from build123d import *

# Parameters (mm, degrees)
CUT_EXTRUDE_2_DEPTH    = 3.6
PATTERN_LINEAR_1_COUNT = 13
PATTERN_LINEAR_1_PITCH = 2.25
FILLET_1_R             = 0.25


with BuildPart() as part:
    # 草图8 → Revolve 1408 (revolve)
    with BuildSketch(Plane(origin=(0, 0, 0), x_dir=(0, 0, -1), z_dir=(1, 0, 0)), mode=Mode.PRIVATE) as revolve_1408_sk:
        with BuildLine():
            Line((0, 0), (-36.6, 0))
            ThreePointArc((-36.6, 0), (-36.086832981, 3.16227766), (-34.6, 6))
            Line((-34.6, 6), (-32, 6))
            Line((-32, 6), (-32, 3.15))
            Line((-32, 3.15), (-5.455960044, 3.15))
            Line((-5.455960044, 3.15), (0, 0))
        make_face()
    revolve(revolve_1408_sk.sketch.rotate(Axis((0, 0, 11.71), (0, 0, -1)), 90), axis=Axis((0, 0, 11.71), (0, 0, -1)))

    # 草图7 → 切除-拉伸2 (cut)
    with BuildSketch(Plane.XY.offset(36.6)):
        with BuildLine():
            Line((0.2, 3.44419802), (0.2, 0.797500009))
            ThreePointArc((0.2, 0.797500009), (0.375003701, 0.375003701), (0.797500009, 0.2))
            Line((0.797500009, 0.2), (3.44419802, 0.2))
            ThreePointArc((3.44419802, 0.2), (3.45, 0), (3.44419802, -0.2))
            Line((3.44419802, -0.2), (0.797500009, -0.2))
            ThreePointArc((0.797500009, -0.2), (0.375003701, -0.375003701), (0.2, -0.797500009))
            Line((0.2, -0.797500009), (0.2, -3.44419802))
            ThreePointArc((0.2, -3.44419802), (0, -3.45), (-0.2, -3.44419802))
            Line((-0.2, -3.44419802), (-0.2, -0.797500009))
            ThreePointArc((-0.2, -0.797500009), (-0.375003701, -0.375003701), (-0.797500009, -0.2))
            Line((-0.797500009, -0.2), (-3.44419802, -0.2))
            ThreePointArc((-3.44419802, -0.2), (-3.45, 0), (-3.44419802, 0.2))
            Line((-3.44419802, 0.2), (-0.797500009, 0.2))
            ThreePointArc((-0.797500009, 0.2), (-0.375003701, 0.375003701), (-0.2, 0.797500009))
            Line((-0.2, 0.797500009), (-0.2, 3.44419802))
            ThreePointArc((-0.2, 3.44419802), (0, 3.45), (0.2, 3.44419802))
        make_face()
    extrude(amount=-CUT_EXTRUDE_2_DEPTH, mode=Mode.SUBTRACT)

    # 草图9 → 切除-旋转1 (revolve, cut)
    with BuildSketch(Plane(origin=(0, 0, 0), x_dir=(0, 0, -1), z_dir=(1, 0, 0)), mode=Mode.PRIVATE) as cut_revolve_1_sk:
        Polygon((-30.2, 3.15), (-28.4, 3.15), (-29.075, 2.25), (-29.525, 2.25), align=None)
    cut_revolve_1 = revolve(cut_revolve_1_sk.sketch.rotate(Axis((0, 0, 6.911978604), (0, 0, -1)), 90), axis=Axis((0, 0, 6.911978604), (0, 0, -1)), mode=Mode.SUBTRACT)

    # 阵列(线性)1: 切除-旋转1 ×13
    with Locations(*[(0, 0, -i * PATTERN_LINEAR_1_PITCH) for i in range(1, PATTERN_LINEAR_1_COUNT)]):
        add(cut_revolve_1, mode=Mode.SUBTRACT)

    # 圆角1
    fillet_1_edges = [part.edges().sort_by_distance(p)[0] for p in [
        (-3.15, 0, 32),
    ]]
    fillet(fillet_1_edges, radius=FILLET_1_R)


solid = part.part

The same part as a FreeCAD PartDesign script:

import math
import FreeCAD as App
import Part
import Sketcher
from FreeCAD import Vector
Q = App.Units.Quantity


def edges_at(feature, points):
    """Names of the edges that pass closest to the given points."""
    edges = feature.Shape.Edges
    near = lambda p: min(range(len(edges)), key=lambda i: edges[i].distToShape(Part.Vertex(*p))[0])
    return sorted({f"Edge{near(p) + 1}" for p in points})


def add_polygon(sketch, points):
    """Adds a closed chain of lines whose ends are joined by coincident constraints."""
    first, n = sketch.GeometryCount, len(points)
    for a, b in zip(points, points[1:] + points[:1]):
        sketch.addGeometry(Part.LineSegment(App.Vector(*a, 0), App.Vector(*b, 0)), False)
    for i in range(n):
        sketch.addConstraint(Sketcher.Constraint("Coincident", first + i, 2, first + (i + 1) % n, 1))

doc = App.newDocument("Part")
params = doc.addObject("Spreadsheet::Sheet", "Params")
for row, (alias, value) in enumerate([
    ("sketch1_radius", "10 mm"),
    ("sketch1_height", "36.6 mm"),
    ("sketch1_height2", "2.6 mm"),
    ("sketch1_length", "6.3 mm"),
    ("revolution_angle", "360 deg"),
    ("sketch2_radius", "3.45 mm"),
    ("pocket1_length", "3.6 mm"),
    ("sketch3_height", "1.8 mm"),
    ("sketch3_height2", "0.45 mm"),
    ("groove_angle", "360 deg"),
    ("linearpattern_pitch", "2.25 mm"),
    ("fillet_radius", "0.25 mm"),
], start=1):
    params.set(f"A{row}", alias)
    params.set(f"B{row}", "=" + value)
    params.setAlias(f"B{row}", alias)

body = doc.addObject("PartDesign::Body", "Body")

sketch1 = body.newObject("Sketcher::SketchObject", "Sketch")
sketch1.AttachmentSupport = (doc.getObject("YZ_Plane"), [""])
sketch1.MapMode = "FlatFace"
sketch1.addGeometry([
    Part.LineSegment(Vector(0, 36.6, 0), Vector(0, 0, 0)),
    Part.LineSegment(Vector(0, 0, 0), Vector(3.15, 5.45596, 0)),
    Part.LineSegment(Vector(3.15, 5.45596, 0), Vector(3.15, 32, 0)),
    Part.LineSegment(Vector(3.15, 32, 0), Vector(6, 32, 0)),
    Part.LineSegment(Vector(6, 32, 0), Vector(6, 34.6, 0)),
    Part.ArcOfCircle(Part.Circle(Vector(0, 26.6, 0), Vector(0, 0, 1), 10), math.radians(53.130102), math.radians(90)),
], False)
sketch1.addConstraint([
    Sketcher.Constraint("Coincident", 0, 2, 1, 1),
    Sketcher.Constraint("Coincident", 1, 2, 2, 1),
    Sketcher.Constraint("Coincident", 2, 2, 3, 1),
    Sketcher.Constraint("Coincident", 3, 2, 4, 1),
    Sketcher.Constraint("Coincident", 4, 2, 5, 1),
    Sketcher.Constraint("Coincident", 5, 2, 0, 1),
    Sketcher.Constraint("Vertical", 0),
    Sketcher.Constraint("Vertical", 2),
    Sketcher.Constraint("Horizontal", 3),
    Sketcher.Constraint("Vertical", 4),
    Sketcher.Constraint("Coincident", 0, 2, -1, 1),
    Sketcher.Constraint("PointOnObject", 5, 3, -2),
    Sketcher.Constraint("Radius", 5, 10.0),
    Sketcher.Constraint("Angle", 1, Q("60 deg")),
    Sketcher.Constraint("DistanceY", 0, 2, 0, 1, 36.6),
    Sketcher.Constraint("DistanceY", 4, 1, 4, 2, 2.6),
    Sketcher.Constraint("DistanceY", -1, 1, 2, 2, 32.0),
    Sketcher.Constraint("Distance", 1, 6.3),
])
sketch1.setExpression("Constraints[12]", "Params.sketch1_radius")
sketch1.setExpression("Constraints[14]", "Params.sketch1_height")
sketch1.setExpression("Constraints[15]", "Params.sketch1_height2")
sketch1.setExpression("Constraints[17]", "Params.sketch1_length")
revolution = body.newObject("PartDesign::Revolution", "Revolution")
revolution.Profile = sketch1
revolution.ReferenceAxis = (sketch1, ["V_Axis"])
revolution.setExpression("Angle", "Params.revolution_angle")

sketch2 = body.newObject("Sketcher::SketchObject", "Sketch001")
sketch2.AttachmentSupport = (doc.getObject("XY_Plane"), [""])
sketch2.MapMode = "FlatFace"
sketch2.AttachmentOffset = App.Placement(Vector(0, 0, 36.6), App.Rotation())
sketch2.addGeometry([
    Part.LineSegment(Vector(0.2, 0.7975, 0), Vector(0.2, 3.444198, 0)),
    Part.ArcOfCircle(Part.Circle(Vector(0, 0, 0), Vector(0, 0, 1), 3.45), math.radians(86.676642), math.radians(93.323358)),
    Part.LineSegment(Vector(-0.2, 3.444198, 0), Vector(-0.2, 0.7975, 0)),
    Part.ArcOfCircle(Part.Circle(Vector(-0.7975, 0.7975, 0), Vector(0, 0, 1), 0.5975), math.radians(-90), math.radians(0)),
    Part.LineSegment(Vector(-0.7975, 0.2, 0), Vector(-3.444198, 0.2, 0)),
    Part.ArcOfCircle(Part.Circle(Vector(0, 0, 0), Vector(0, 0, 1), 3.45), math.radians(176.676642), math.radians(183.323358)),
    Part.LineSegment(Vector(-3.444198, -0.2, 0), Vector(-0.7975, -0.2, 0)),
    Part.ArcOfCircle(Part.Circle(Vector(-0.7975, -0.7975, 0), Vector(0, 0, 1), 0.5975), math.radians(0), math.radians(90)),
    Part.LineSegment(Vector(-0.2, -0.7975, 0), Vector(-0.2, -3.444198, 0)),
    Part.ArcOfCircle(Part.Circle(Vector(0, 0, 0), Vector(0, 0, 1), 3.45), math.radians(-93.323358), math.radians(-86.676642)),
    Part.LineSegment(Vector(0.2, -3.444198, 0), Vector(0.2, -0.7975, 0)),
    Part.ArcOfCircle(Part.Circle(Vector(0.7975, -0.7975, 0), Vector(0, 0, 1), 0.5975), math.radians(90), math.radians(180)),
    Part.LineSegment(Vector(0.7975, -0.2, 0), Vector(3.444198, -0.2, 0)),
    Part.ArcOfCircle(Part.Circle(Vector(0, 0, 0), Vector(0, 0, 1), 3.45), math.radians(-3.323358), math.radians(3.323358)),
    Part.LineSegment(Vector(3.444198, 0.2, 0), Vector(0.7975, 0.2, 0)),
    Part.ArcOfCircle(Part.Circle(Vector(0.7975, 0.7975, 0), Vector(0, 0, 1), 0.5975), math.radians(180), math.radians(270)),
], False)
sketch2.addConstraint([
    Sketcher.Constraint("Coincident", 0, 2, 1, 1),
    Sketcher.Constraint("Coincident", 1, 2, 2, 1),
    Sketcher.Constraint("Tangent", 2, 2, 3, 2),
    Sketcher.Constraint("Tangent", 3, 1, 4, 1),
    Sketcher.Constraint("Coincident", 4, 2, 5, 1),
    Sketcher.Constraint("Coincident", 5, 2, 6, 1),
    Sketcher.Constraint("Tangent", 6, 2, 7, 2),
    Sketcher.Constraint("Tangent", 7, 1, 8, 1),
    Sketcher.Constraint("Coincident", 8, 2, 9, 1),
    Sketcher.Constraint("Coincident", 9, 2, 10, 1),
    Sketcher.Constraint("Tangent", 10, 2, 11, 2),
    Sketcher.Constraint("Tangent", 11, 1, 12, 1),
    Sketcher.Constraint("Coincident", 12, 2, 13, 1),
    Sketcher.Constraint("Coincident", 13, 2, 14, 1),
    Sketcher.Constraint("Tangent", 14, 2, 15, 2),
    Sketcher.Constraint("Tangent", 15, 1, 0, 1),
    Sketcher.Constraint("Vertical", 0),
    Sketcher.Constraint("Vertical", 2),
    Sketcher.Constraint("Horizontal", 4),
    Sketcher.Constraint("Horizontal", 6),
    Sketcher.Constraint("Vertical", 8),
    Sketcher.Constraint("Vertical", 10),
    Sketcher.Constraint("Horizontal", 12),
    Sketcher.Constraint("Horizontal", 14),
    Sketcher.Constraint("Coincident", 1, 3, -1, 1),
    Sketcher.Constraint("Coincident", 5, 3, -1, 1),
    Sketcher.Constraint("Coincident", 9, 3, -1, 1),
    Sketcher.Constraint("Coincident", 13, 3, -1, 1),
    Sketcher.Constraint("Equal", 1, 5),
    Sketcher.Constraint("Equal", 3, 7),
    Sketcher.Constraint("Equal", 5, 9),
    Sketcher.Constraint("Equal", 7, 11),
    Sketcher.Constraint("Equal", 9, 13),
    Sketcher.Constraint("Equal", 11, 15),
    Sketcher.Constraint("Symmetric", 3, 3, 11, 3, -1, 1),
    Sketcher.Constraint("Symmetric", 7, 3, 15, 3, -1, 1),
    Sketcher.Constraint("Symmetric", 7, 3, 11, 3, -2),
    Sketcher.Constraint("Equal", 14, 0),
    Sketcher.Constraint("Radius", 1, 3.45),
    Sketcher.Constraint("DistanceX", -1, 1, 0, 2, 0.2),
    Sketcher.Constraint("Radius", 3, 0.5975),
])
sketch2.setExpression("Constraints[38]", "Params.sketch2_radius")
pocket1 = body.newObject("PartDesign::Pocket", "Pocket")
pocket1.Profile = sketch2
pocket1.setExpression("Length", "Params.pocket1_length")

sketch3 = body.newObject("Sketcher::SketchObject", "Sketch002")
sketch3.AttachmentSupport = (doc.getObject("YZ_Plane"), [""])
sketch3.MapMode = "FlatFace"
add_polygon(sketch3, [(3.15, 28.4), (3.15, 30.2), (2.25, 29.525), (2.25, 29.075)])
sketch3.addConstraint([
    Sketcher.Constraint("Vertical", 0),
    Sketcher.Constraint("Vertical", 2),
    Sketcher.Constraint("Equal", 1, 3),
    Sketcher.Constraint("DistanceY", 0, 1, 0, 2, 1.8),
    Sketcher.Constraint("DistanceY", 2, 2, 2, 1, 0.45),
    Sketcher.Constraint("DistanceY", -1, 1, 0, 2, 30.2),
    Sketcher.Constraint("DistanceX", 1, 2, 0, 2, 0.9),
    Sketcher.Constraint("DistanceX", -1, 1, 0, 2, 3.15),
])
sketch3.setExpression("Constraints[7]", "Params.sketch3_height")
sketch3.setExpression("Constraints[8]", "Params.sketch3_height2")
groove = body.newObject("PartDesign::Groove", "Groove")
groove.Profile = sketch3
groove.ReferenceAxis = (sketch3, ["V_Axis"])
groove.setExpression("Angle", "Params.groove_angle")
doc.recompute()

linearpattern = body.newObject("PartDesign::LinearPattern", "LinearPattern")
linearpattern.Originals = [groove]
linearpattern.Direction = (doc.getObject("Z_Axis"), [""])
linearpattern.Mode = "offset"
linearpattern.setExpression("Offset", "Params.linearpattern_pitch")
linearpattern.Occurrences = 13
linearpattern.Reversed = True
body.Tip = linearpattern
doc.recompute()

fillet = body.newObject("PartDesign::Fillet", "Fillet")
fillet.Base = (linearpattern, edges_at(linearpattern, [(-3.15, 0, 32)]))
fillet.setExpression("Radius", "Params.fillet_radius")

doc.recompute()
